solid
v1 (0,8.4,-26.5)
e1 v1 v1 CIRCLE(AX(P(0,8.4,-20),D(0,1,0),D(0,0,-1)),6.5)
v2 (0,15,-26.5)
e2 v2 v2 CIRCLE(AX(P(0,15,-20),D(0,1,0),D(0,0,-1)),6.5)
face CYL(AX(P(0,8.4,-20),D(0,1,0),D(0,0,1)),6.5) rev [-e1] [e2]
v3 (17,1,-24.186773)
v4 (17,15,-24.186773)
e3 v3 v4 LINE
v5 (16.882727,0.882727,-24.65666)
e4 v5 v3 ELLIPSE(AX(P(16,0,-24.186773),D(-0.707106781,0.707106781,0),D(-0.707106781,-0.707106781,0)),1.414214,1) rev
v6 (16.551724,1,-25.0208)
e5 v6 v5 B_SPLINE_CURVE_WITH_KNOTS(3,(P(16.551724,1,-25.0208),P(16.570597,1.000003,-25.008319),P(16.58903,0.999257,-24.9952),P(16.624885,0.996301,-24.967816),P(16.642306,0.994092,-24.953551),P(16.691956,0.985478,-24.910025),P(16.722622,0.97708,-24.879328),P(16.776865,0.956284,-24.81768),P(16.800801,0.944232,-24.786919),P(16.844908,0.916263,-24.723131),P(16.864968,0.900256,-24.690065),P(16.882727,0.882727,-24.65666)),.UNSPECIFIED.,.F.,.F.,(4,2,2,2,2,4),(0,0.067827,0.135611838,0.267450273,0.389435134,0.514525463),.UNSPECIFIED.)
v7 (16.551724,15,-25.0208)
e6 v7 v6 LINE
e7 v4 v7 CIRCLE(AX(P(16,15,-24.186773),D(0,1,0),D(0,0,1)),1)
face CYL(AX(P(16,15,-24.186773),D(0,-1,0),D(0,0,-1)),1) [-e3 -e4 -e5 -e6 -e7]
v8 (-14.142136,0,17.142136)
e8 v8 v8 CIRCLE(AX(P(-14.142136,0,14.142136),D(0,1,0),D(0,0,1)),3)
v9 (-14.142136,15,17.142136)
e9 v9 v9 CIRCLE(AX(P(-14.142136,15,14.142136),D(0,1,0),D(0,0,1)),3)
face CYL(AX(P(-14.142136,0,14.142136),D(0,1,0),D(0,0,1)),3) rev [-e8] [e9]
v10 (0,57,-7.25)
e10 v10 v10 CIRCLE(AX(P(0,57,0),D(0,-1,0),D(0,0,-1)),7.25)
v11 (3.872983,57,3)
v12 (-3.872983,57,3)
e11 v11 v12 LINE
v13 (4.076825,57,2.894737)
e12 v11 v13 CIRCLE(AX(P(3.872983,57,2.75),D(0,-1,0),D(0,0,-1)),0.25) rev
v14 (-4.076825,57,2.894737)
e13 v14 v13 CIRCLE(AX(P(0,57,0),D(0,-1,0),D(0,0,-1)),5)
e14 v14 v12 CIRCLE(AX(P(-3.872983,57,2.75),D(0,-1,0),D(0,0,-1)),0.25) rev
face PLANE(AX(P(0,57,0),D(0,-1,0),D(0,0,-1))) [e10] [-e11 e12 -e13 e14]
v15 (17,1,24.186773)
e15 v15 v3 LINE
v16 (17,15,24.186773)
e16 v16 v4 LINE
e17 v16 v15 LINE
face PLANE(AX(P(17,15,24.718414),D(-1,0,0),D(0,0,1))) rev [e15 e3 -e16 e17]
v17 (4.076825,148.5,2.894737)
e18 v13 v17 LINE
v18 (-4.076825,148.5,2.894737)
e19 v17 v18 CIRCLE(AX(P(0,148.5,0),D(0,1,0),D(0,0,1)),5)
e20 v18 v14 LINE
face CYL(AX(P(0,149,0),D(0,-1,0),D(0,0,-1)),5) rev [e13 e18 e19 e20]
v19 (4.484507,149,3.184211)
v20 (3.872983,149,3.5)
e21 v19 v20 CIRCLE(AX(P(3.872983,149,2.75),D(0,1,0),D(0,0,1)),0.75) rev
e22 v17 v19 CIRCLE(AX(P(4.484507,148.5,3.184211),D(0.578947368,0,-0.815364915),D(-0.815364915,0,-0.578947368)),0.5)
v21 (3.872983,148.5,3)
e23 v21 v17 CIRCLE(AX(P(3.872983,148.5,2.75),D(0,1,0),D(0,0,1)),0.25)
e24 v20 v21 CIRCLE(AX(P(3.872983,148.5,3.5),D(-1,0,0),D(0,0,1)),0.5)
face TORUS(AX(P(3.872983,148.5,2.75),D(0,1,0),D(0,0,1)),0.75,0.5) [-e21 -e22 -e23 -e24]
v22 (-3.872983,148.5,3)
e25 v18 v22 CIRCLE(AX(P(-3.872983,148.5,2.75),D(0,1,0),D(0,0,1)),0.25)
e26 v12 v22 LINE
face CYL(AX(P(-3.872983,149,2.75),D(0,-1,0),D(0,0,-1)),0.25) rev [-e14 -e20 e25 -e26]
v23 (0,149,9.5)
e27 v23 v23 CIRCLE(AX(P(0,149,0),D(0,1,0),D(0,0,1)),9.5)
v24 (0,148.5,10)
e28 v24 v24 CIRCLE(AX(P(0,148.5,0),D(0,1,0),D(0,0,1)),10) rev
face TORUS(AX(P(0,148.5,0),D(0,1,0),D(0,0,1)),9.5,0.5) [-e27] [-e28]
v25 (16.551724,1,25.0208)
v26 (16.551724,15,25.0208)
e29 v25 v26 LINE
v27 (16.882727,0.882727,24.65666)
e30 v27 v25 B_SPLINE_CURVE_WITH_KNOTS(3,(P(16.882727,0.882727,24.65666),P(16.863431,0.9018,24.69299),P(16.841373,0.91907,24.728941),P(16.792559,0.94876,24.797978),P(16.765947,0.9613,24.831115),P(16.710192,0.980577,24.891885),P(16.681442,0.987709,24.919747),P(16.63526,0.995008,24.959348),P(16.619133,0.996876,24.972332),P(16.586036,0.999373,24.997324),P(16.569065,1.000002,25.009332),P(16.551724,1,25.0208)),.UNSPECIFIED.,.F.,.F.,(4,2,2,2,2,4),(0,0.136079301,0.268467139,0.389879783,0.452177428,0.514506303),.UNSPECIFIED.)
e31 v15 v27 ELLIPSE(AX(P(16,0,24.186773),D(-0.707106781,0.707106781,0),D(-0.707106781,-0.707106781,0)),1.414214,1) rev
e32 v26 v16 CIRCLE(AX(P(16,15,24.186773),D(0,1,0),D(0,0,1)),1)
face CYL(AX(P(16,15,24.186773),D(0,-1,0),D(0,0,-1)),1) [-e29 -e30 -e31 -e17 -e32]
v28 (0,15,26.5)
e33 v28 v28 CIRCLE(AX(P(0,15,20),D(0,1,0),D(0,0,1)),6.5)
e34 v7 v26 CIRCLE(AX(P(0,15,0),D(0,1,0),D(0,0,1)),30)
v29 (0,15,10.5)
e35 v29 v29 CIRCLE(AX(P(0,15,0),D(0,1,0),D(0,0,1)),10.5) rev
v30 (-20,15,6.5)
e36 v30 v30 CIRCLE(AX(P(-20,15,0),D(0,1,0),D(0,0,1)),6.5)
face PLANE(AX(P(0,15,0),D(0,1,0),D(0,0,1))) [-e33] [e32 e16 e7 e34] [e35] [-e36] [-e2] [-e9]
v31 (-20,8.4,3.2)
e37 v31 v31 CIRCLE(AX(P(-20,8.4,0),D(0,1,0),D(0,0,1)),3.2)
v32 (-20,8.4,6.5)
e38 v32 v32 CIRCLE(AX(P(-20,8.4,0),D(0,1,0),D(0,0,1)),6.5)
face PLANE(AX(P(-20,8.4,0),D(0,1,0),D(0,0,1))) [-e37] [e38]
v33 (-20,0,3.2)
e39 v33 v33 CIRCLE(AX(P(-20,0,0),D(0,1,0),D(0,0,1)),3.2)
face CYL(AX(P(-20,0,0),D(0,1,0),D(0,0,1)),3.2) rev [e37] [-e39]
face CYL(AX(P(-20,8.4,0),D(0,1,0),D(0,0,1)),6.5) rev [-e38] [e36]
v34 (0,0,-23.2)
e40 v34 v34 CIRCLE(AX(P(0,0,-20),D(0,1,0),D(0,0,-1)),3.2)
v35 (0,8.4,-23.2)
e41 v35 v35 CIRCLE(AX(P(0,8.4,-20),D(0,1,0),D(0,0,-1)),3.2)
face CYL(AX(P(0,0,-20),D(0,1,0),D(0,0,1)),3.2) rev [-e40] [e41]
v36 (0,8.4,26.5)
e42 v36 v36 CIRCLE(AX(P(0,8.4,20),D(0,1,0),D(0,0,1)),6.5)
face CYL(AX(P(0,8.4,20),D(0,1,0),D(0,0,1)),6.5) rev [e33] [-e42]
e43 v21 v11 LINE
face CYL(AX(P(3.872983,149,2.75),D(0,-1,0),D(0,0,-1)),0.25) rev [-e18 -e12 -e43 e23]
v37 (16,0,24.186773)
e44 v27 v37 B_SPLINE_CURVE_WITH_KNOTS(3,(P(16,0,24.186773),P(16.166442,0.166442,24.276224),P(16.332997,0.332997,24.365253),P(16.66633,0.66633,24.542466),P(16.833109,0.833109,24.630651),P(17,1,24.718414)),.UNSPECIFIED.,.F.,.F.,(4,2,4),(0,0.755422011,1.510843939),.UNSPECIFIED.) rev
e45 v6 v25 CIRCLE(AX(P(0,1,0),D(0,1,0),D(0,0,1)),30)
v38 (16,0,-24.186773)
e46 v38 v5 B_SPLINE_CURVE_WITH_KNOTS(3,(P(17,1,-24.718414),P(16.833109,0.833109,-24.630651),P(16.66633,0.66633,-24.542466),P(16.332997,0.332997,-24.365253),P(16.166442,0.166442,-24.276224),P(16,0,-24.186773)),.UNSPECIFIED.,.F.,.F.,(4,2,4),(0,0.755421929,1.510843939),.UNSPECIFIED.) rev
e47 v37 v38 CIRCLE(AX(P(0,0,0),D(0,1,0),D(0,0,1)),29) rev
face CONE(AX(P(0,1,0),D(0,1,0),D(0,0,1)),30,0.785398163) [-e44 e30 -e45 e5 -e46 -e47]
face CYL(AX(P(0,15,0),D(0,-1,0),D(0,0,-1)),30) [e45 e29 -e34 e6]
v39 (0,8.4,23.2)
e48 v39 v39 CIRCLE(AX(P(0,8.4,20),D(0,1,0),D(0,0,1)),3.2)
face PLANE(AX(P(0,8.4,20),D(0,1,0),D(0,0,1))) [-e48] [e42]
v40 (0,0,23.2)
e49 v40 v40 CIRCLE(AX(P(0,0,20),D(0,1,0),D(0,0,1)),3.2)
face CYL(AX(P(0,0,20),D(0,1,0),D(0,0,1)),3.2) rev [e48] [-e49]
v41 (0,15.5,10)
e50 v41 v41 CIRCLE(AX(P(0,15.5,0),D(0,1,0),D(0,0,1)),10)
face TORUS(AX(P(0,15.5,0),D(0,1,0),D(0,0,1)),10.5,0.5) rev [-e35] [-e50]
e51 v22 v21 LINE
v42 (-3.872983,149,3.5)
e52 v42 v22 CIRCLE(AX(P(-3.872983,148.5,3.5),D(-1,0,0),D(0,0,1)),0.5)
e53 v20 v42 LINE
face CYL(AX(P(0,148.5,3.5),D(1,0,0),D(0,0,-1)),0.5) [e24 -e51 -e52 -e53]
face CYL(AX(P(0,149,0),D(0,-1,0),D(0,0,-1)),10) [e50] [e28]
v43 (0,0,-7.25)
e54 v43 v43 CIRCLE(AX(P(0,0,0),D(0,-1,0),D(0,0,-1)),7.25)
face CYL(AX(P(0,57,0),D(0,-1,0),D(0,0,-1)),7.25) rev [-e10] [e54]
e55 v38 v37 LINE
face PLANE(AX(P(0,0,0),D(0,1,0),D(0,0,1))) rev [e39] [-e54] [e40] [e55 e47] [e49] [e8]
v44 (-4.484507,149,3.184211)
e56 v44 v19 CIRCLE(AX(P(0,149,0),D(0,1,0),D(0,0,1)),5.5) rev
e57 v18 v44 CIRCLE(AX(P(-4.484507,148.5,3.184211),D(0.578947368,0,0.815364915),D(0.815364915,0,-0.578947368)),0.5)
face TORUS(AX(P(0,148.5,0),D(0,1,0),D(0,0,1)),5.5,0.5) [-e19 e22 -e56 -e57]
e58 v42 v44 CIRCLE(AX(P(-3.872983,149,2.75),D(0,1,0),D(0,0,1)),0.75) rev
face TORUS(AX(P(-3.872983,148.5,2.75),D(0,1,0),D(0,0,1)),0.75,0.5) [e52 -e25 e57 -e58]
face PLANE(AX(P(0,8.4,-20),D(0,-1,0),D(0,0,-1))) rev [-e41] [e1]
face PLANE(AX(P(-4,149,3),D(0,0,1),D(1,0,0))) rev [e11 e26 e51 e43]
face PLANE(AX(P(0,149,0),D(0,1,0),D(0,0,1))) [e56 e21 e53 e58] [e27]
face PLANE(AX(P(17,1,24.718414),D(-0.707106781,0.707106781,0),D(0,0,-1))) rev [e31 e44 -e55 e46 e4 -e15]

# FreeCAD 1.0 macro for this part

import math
import FreeCAD as App
import Part
import Sketcher

V = App.Vector
Q = App.Units.Quantity


def edges_at(feature, points):
    """Names of the edges that pass closest to the given points."""
    edges = feature.Shape.Edges
    near = lambda p: min(range(len(edges)), key=lambda i: edges[i].distToShape(Part.Vertex(*p))[0])
    return sorted({f"Edge{near(p) + 1}" for p in points})

doc = App.newDocument("Part")
params = doc.addObject("Spreadsheet::Sheet", "Params")
for row, (alias, value) in enumerate([
    ("sketch1_radius", "30 mm"),
    ("pad1_length", "15 mm"),
    ("sketch2_diameter", "20 mm"),
    ("pad2_length", "134 mm"),
    ("sketch3_diameter", "14.5 mm"),
    ("pocket1_length", "57 mm"),
    ("sketch4_radius", "5 mm"),
    ("sketch4_width", "8 mm"),
    ("sketch5_diameter", "13 mm"),
    ("pocket3_length", "6.6 mm"),
    ("sketch6_diameter", "6.4 mm"),
    ("fillet_radius", "0.25 mm"),
    ("chamfer_size", "1 mm"),
    ("fillet2_radius", "0.5 mm"),
    ("fillet3_radius", "0.5 mm"),
    ("fillet4_radius", "0.5 mm"),
    ("sketch7_diameter", "6 mm"),
    ("fillet5_radius", "1 mm"),
], start=1):
    params.set(f"A{row}", alias)
    params.set(f"B{row}", "=" + value)
    params.setAlias(f"B{row}", alias)

body = doc.addObject("PartDesign::Body", "Body")

sketch1 = body.newObject("Sketcher::SketchObject", "Sketch")
sketch1.AttachmentSupport = (doc.getObject("XZ_Plane"), [""])
sketch1.MapMode = "FlatFace"
sketch1.addGeometry(Part.LineSegment(V(17, 24.718414, 0), V(17, -24.718414, 0)), False)
sketch1.addGeometry(Part.ArcOfCircle(Part.Circle(V(0, 0, 0), V(0, 0, 1), 30), math.radians(55.481892), math.radians(304.518108)), False)
sketch1.addConstraint(Sketcher.Constraint("Coincident", 0, 1, 1, 1))
sketch1.addConstraint(Sketcher.Constraint("Coincident", 1, 2, 0, 2))
sketch1.addConstraint(Sketcher.Constraint("Vertical", 0))
sketch1.addConstraint(Sketcher.Constraint("Coincident", 1, 3, -1, 1))
sketch1.addConstraint(Sketcher.Constraint("Radius", 1, Q("30 mm")))
sketch1.addConstraint(Sketcher.Constraint("DistanceX", -1, 1, 0, 1, Q("17 mm")))
sketch1.setExpression("Constraints[4]", "Params.sketch1_radius")
pad1 = body.newObject("PartDesign::Pad", "Pad")
pad1.Profile = sketch1
pad1.setExpression("Length", "Params.pad1_length")
pad1.Reversed = True

sketch2 = body.newObject("Sketcher::SketchObject", "Sketch001")
sketch2.AttachmentSupport = (doc.getObject("XZ_Plane"), [""])
sketch2.MapMode = "FlatFace"
sketch2.AttachmentOffset = App.Placement(V(0, 0, -15), App.Rotation())
sketch2.addGeometry(Part.Circle(V(0, 0, 0), V(0, 0, 1), 10), False)
sketch2.addConstraint(Sketcher.Constraint("Coincident", 0, 3, -1, 1))
sketch2.addConstraint(Sketcher.Constraint("Diameter", 0, Q("20 mm")))
sketch2.setExpression("Constraints[1]", "Params.sketch2_diameter")
pad2 = body.newObject("PartDesign::Pad", "Pad001")
pad2.Profile = sketch2
pad2.setExpression("Length", "Params.pad2_length")
pad2.Reversed = True

sketch3 = body.newObject("Sketcher::SketchObject", "Sketch002")
sketch3.AttachmentSupport = (doc.getObject("XZ_Plane"), [""])
sketch3.MapMode = "FlatFace"
sketch3.addGeometry(Part.Circle(V(0, 0, 0), V(0, 0, 1), 7.25), False)
sketch3.addConstraint(Sketcher.Constraint("Coincident", 0, 3, -1, 1))
sketch3.addConstraint(Sketcher.Constraint("Diameter", 0, Q("14.5 mm")))
sketch3.setExpression("Constraints[1]", "Params.sketch3_diameter")
pocket1 = body.newObject("PartDesign::Pocket", "Pocket")
pocket1.Profile = sketch3
pocket1.setExpression("Length", "Params.pocket1_length")

sketch4 = body.newObject("Sketcher::SketchObject", "Sketch003")
sketch4.AttachmentSupport = (doc.getObject("XZ_Plane"), [""])
sketch4.MapMode = "FlatFace"
sketch4.AttachmentOffset = App.Placement(V(0, 0, -57), App.Rotation())
sketch4.addGeometry(Part.LineSegment(V(4, 3, 0), V(-4, 3, 0)), False)
sketch4.addGeometry(Part.ArcOfCircle(Part.Circle(V(0, 0, 0), V(0, 0, 1), 5), math.radians(143.130102), math.radians(396.869898)), False)
sketch4.addConstraint(Sketcher.Constraint("Coincident", 0, 1, 1, 2))
sketch4.addConstraint(Sketcher.Constraint("Coincident", 1, 1, 0, 2))
sketch4.addConstraint(Sketcher.Constraint("Horizontal", 0))
sketch4.addConstraint(Sketcher.Constraint("Coincident", 1, 3, -1, 1))
sketch4.addConstraint(Sketcher.Constraint("Radius", 1, Q("5 mm")))
sketch4.addConstraint(Sketcher.Constraint("DistanceX", 0, 2, 0, 1, Q("8 mm")))
sketch4.setExpression("Constraints[4]", "Params.sketch4_radius")
sketch4.setExpression("Constraints[5]", "Params.sketch4_width")
pocket2 = body.newObject("PartDesign::Pocket", "Pocket001")
pocket2.Profile = sketch4
pocket2.Type = "ThroughAll"

sketch5 = body.newObject("Sketcher::SketchObject", "Sketch004")
sketch5.AttachmentSupport = (doc.getObject("XZ_Plane"), [""])
sketch5.MapMode = "FlatFace"
sketch5.AttachmentOffset = App.Placement(V(0, 0, -15), App.Rotation())
sketch5.addGeometry(Part.Circle(V(0, 20, 0), V(0, 0, 1), 6.5), False)
sketch5.addGeometry(Part.Circle(V(-20, 0, 0), V(0, 0, 1), 6.5), False)
sketch5.addGeometry(Part.Circle(V(0, -20, 0), V(0, 0, 1), 6.5), False)
sketch5.addConstraint(Sketcher.Constraint("Equal", 0, 1))
sketch5.addConstraint(Sketcher.Constraint("Equal", 1, 2))
sketch5.addConstraint(Sketcher.Constraint("Symmetric", 0, 3, 2, 3, -1, 1))
sketch5.addConstraint(Sketcher.Constraint("PointOnObject", 0, 3, -2))
sketch5.addConstraint(Sketcher.Constraint("PointOnObject", 1, 3, -1))
sketch5.addConstraint(Sketcher.Constraint("Diameter", 0, Q("13 mm")))
sketch5.addConstraint(Sketcher.Constraint("DistanceY", -1, 1, 0, 3, Q("20 mm")))
sketch5.addConstraint(Sketcher.Constraint("DistanceX", 1, 3, -1, 1, Q("20 mm")))
sketch5.setExpression("Constraints[5]", "Params.sketch5_diameter")
pocket3 = body.newObject("PartDesign::Pocket", "Pocket002")
pocket3.Profile = sketch5
pocket3.setExpression("Length", "Params.pocket3_length")
pocket3.Reversed = True

sketch6 = body.newObject("Sketcher::SketchObject", "Sketch005")
sketch6.AttachmentSupport = (doc.getObject("XZ_Plane"), [""])
sketch6.MapMode = "FlatFace"
sketch6.AttachmentOffset = App.Placement(V(0, 0, -8.4), App.Rotation())
sketch6.addGeometry(Part.Circle(V(0, 20, 0), V(0, 0, 1), 3.2), False)
sketch6.addGeometry(Part.Circle(V(-20, 0, 0), V(0, 0, 1), 3.2), False)
sketch6.addGeometry(Part.Circle(V(0, -20, 0), V(0, 0, 1), 3.2), False)
sketch6.addConstraint(Sketcher.Constraint("Equal", 0, 1))
sketch6.addConstraint(Sketcher.Constraint("Equal", 1, 2))
sketch6.addConstraint(Sketcher.Constraint("Symmetric", 0, 3, 2, 3, -1, 1))
sketch6.addConstraint(Sketcher.Constraint("PointOnObject", 0, 3, -2))
sketch6.addConstraint(Sketcher.Constraint("PointOnObject", 1, 3, -1))
sketch6.addConstraint(Sketcher.Constraint("Diameter", 0, Q("6.4 mm")))
sketch6.addConstraint(Sketcher.Constraint("DistanceY", -1, 1, 0, 3, Q("20 mm")))
sketch6.addConstraint(Sketcher.Constraint("DistanceX", 1, 3, -1, 1, Q("20 mm")))
sketch6.setExpression("Constraints[5]", "Params.sketch6_diameter")
pocket4 = body.newObject("PartDesign::Pocket", "Pocket003")
pocket4.Profile = sketch6
pocket4.Type = "ThroughAll"
pocket4.Reversed = True
doc.recompute()

fillet = body.newObject("PartDesign::Fillet", "Fillet")
fillet.Base = (pocket4, edges_at(pocket4, [(4, 103, 3), (-4, 103, 3)]))
fillet.setExpression("Radius", "Params.fillet_radius")
doc.recompute()

chamfer = body.newObject("PartDesign::Chamfer", "Chamfer")
chamfer.Base = (fillet, edges_at(fillet, [(17, 0, 0), (-30, 0, 0)]))
chamfer.setExpression("Size", "Params.chamfer_size")
doc.recompute()

fillet2 = body.newObject("PartDesign::Fillet", "Fillet001")
fillet2.Base = (chamfer, edges_at(chamfer, [(-10, 149, 0)]))
fillet2.setExpression("Radius", "Params.fillet2_radius")
doc.recompute()

fillet3 = body.newObject("PartDesign::Fillet", "Fillet002")
fillet3.Base = (fillet2, edges_at(fillet2, [
    (0, 149, 3),
    (0, 149, -5),
    (3.988, 149, 2.972),
    (-3.988, 149, 2.972),
]))
fillet3.setExpression("Radius", "Params.fillet3_radius")
doc.recompute()

fillet4 = body.newObject("PartDesign::Fillet", "Fillet003")
fillet4.Base = (fillet3, edges_at(fillet3, [(-10, 15, 0)]))
fillet4.setExpression("Radius", "Params.fillet4_radius")

sketch7 = body.newObject("Sketcher::SketchObject", "Sketch006")
sketch7.AttachmentSupport = (doc.getObject("XZ_Plane"), [""])
sketch7.MapMode = "FlatFace"
sketch7.AttachmentOffset = App.Placement(V(0, 0, -15), App.Rotation())
sketch7.addGeometry(Part.Circle(V(-14.142136, 14.142136, 0), V(0, 0, 1), 3), False)
sketch7.addConstraint(Sketcher.Constraint("Diameter", 0, Q("6 mm")))
sketch7.addConstraint(Sketcher.Constraint("DistanceX", 0, 3, -1, 1, Q("14.142136 mm")))
sketch7.addConstraint(Sketcher.Constraint("DistanceY", -1, 1, 0, 3, Q("14.142136 mm")))
sketch7.setExpression("Constraints[0]", "Params.sketch7_diameter")
pocket5 = body.newObject("PartDesign::Pocket", "Pocket004")
pocket5.Profile = sketch7
pocket5.Type = "ThroughAll"
pocket5.Reversed = True
doc.recompute()

fillet5 = body.newObject("PartDesign::Fillet", "Fillet004")
fillet5.Base = (pocket5, edges_at(pocket5, [(17, 8, -24.718), (17, 8, 24.718)]))
fillet5.setExpression("Radius", "Params.fillet5_radius")

doc.recompute()
